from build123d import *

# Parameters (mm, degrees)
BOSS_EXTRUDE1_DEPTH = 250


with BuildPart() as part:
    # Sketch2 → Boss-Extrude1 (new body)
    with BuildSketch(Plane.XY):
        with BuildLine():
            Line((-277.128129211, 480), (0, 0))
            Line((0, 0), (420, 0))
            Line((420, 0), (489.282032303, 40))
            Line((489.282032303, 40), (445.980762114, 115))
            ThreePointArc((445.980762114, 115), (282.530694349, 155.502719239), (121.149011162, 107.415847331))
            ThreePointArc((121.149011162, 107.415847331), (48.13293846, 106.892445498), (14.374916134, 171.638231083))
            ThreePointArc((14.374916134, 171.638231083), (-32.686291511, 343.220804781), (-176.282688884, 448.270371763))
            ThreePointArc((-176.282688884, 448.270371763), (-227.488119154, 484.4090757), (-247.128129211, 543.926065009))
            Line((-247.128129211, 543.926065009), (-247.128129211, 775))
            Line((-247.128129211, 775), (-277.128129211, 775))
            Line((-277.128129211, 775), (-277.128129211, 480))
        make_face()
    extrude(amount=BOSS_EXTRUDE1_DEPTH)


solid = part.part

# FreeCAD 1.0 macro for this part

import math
import FreeCAD as App
import Part
import Sketcher
from FreeCAD import Vector
Q = App.Units.Quantity

doc = App.newDocument("Part")
body = doc.addObject("PartDesign::Body", "Body")

# Sketch on XY plane
sketch1 = body.newObject("Sketcher::SketchObject", "Sketch")
sketch1.AttachmentSupport = (doc.getObject("XY_Plane"), [""])
sketch1.MapMode = "FlatFace"
sketch1.addGeometry([
    Part.LineSegment(Vector(-277, 480, 0), Vector(0, 0, 0)),  # 0
    Part.LineSegment(Vector(0, 0, 0), Vector(420, 0, 0)),  # 1
    Part.LineSegment(Vector(420, 0, 0), Vector(489, 40, 0)),  # 2
    Part.LineSegment(Vector(489, 40, 0), Vector(446, 115, 0)),  # 3
    Part.ArcOfCircle(Part.Circle(Vector(290, -164, 0), Vector(0, 0, 1), 320), math.radians(61), math.radians(122)),  # 4
    Part.ArcOfCircle(Part.Circle(Vector(84, 167, 0), Vector(0, 0, 1), 70), math.radians(176), math.radians(302)),  # 5
    Part.ArcOfCircle(Part.Circle(Vector(-255, 190, 0), Vector(0, 0, 1), 270), math.radians(-4), math.radians(73)),  # 6
    Part.ArcOfCircle(Part.Circle(Vector(-147, 544, 0), Vector(0, 0, 1), 100), math.radians(180), math.radians(253)),  # 7
    Part.LineSegment(Vector(-247, 544, 0), Vector(-247, 775, 0)),  # 8
    Part.LineSegment(Vector(-247, 775, 0), Vector(-277, 775, 0)),  # 9
    Part.LineSegment(Vector(-277, 775, 0), Vector(-277, 480, 0)),  # 10
], False)
sketch1.addConstraint([
    Sketcher.Constraint("Coincident", 0, 2, 1, 1),
    Sketcher.Constraint("Coincident", 1, 2, 2, 1),
    Sketcher.Constraint("Coincident", 2, 2, 3, 1),
    Sketcher.Constraint("Coincident", 3, 2, 4, 1),
    Sketcher.Constraint("Tangent", 4, 2, 5, 2),
    Sketcher.Constraint("Tangent", 5, 1, 6, 1),
    Sketcher.Constraint("Tangent", 6, 2, 7, 2),
    Sketcher.Constraint("Tangent", 7, 1, 8, 1),
    Sketcher.Constraint("Coincident", 8, 2, 9, 1),
    Sketcher.Constraint("Coincident", 9, 2, 10, 1),
    Sketcher.Constraint("Coincident", 10, 2, 0, 1),
    Sketcher.Constraint("Horizontal", 1),
    Sketcher.Constraint("Vertical", 8),
    Sketcher.Constraint("Horizontal", 9),
    Sketcher.Constraint("Vertical", 10),
    Sketcher.Constraint("Coincident", 0, 2, -1, 1),
    Sketcher.Constraint("Perpendicular", 0, 2),
    Sketcher.Constraint("Perpendicular", 2, 3),
    Sketcher.Constraint("Radius", 4, 320.0),
    Sketcher.Constraint("Radius", 5, 70.0),
    Sketcher.Constraint("Radius", 6, 270.0),
    Sketcher.Constraint("Radius", 7, 100.0),
    Sketcher.Constraint("DistanceX", 1, 1, 1, 2, 420.0),
    Sketcher.Constraint("DistanceX", 9, 2, 9, 1, 30.0),
    Sketcher.Constraint("DistanceY", 10, 2, 10, 1, 295.0),
    Sketcher.Constraint("Angle", 0, Q("-60 deg")),
    Sketcher.Constraint("Distance", 2, 80.0),
    Sketcher.Constraint("DistanceX", -1, 1, 4, 3, 290.0),
    Sketcher.Constraint("DistanceX", 6, 3, -1, 1, 255.0),
    Sketcher.Constraint("DistanceY", -1, 1, 6, 3, 190.0),
    Sketcher.Constraint("DistanceY", -1, 1, 3, 2, 115.0),
    Sketcher.Constraint("DistanceY", -1, 1, 8, 2, 775.0),
])
pad1 = body.newObject("PartDesign::Pad", "Pad")
pad1.Profile = sketch1
pad1.Length = 250

doc.recompute()
